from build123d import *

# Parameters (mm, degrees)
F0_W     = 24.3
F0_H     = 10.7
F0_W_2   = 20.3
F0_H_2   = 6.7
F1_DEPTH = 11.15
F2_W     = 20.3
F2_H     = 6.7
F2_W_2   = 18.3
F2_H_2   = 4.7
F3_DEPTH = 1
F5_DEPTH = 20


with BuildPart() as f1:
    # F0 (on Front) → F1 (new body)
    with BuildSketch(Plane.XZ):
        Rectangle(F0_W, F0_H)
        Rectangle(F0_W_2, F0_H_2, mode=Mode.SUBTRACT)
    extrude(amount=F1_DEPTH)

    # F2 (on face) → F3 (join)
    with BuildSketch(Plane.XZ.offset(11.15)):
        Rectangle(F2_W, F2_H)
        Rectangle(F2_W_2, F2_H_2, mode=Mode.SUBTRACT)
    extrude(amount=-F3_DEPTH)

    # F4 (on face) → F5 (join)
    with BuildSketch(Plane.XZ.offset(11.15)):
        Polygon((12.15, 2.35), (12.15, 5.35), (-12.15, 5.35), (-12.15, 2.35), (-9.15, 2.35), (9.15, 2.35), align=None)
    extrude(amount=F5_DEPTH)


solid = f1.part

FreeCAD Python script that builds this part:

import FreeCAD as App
import Part
import Sketcher

doc = App.newDocument("Part")
body = doc.addObject("PartDesign::Body", "Body")

# Sketch on XZ plane
sketch1 = body.newObject("Sketcher::SketchObject", "Sketch")
sketch1.AttachmentSupport = (doc.getObject("XZ_Plane"), [""])
sketch1.MapMode = "FlatFace"
sketch1.addGeometry(Part.LineSegment(App.Vector(-12.15, 5.35, 0), App.Vector(-12.15, -5.35, 0)), False)
sketch1.addGeometry(Part.LineSegment(App.Vector(-12.15, -5.35, 0), App.Vector(12.15, -5.35, 0)), False)
sketch1.addGeometry(Part.LineSegment(App.Vector(12.15, -5.35, 0), App.Vector(12.15, 5.35, 0)), False)
sketch1.addGeometry(Part.LineSegment(App.Vector(12.15, 5.35, 0), App.Vector(-12.15, 5.35, 0)), False)
sketch1.addGeometry(Part.LineSegment(App.Vector(10.15, -3.35, 0), App.Vector(-10.15, -3.35, 0)), False)
sketch1.addGeometry(Part.LineSegment(App.Vector(-10.15, -3.35, 0), App.Vector(-10.15, 3.35, 0)), False)
sketch1.addGeometry(Part.LineSegment(App.Vector(-10.15, 3.35, 0), App.Vector(10.15, 3.35, 0)), False)
sketch1.addGeometry(Part.LineSegment(App.Vector(10.15, 3.35, 0), App.Vector(10.15, -3.35, 0)), False)
sketch1.addConstraint(Sketcher.Constraint("Coincident", 0, 2, 1, 1))
sketch1.addConstraint(Sketcher.Constraint("Coincident", 1, 2, 2, 1))
sketch1.addConstraint(Sketcher.Constraint("Coincident", 2, 2, 3, 1))
sketch1.addConstraint(Sketcher.Constraint("Coincident", 3, 2, 0, 1))
sketch1.addConstraint(Sketcher.Constraint("Coincident", 4, 2, 5, 1))
sketch1.addConstraint(Sketcher.Constraint("Coincident", 5, 2, 6, 1))
sketch1.addConstraint(Sketcher.Constraint("Coincident", 6, 2, 7, 1))
sketch1.addConstraint(Sketcher.Constraint("Coincident", 7, 2, 4, 1))
sketch1.addConstraint(Sketcher.Constraint("Vertical", 0))
sketch1.addConstraint(Sketcher.Constraint("Horizontal", 1))
sketch1.addConstraint(Sketcher.Constraint("Vertical", 2))
sketch1.addConstraint(Sketcher.Constraint("Horizontal", 3))
sketch1.addConstraint(Sketcher.Constraint("Horizontal", 4))
sketch1.addConstraint(Sketcher.Constraint("Vertical", 5))
sketch1.addConstraint(Sketcher.Constraint("Horizontal", 6))
sketch1.addConstraint(Sketcher.Constraint("Vertical", 7))
sketch1.addConstraint(Sketcher.Constraint("Symmetric", 0, 2, 2, 2, -1, 1))
sketch1.addConstraint(Sketcher.Constraint("Symmetric", 4, 2, 6, 2, -1, 1))
sketch1.addConstraint(Sketcher.Constraint("DistanceX", 1, 1, 1, 2, 24.3))
sketch1.addConstraint(Sketcher.Constraint("DistanceX", 4, 2, 4, 1, 20.3))
sketch1.addConstraint(Sketcher.Constraint("DistanceY", 0, 2, 0, 1, 10.7))
sketch1.addConstraint(Sketcher.Constraint("DistanceY", 5, 1, 5, 2, 6.7))
pad1 = body.newObject("PartDesign::Pad", "Pad")
pad1.Profile = sketch1
pad1.Length = 11.15

# Sketch on XZ plane
sketch2 = body.newObject("Sketcher::SketchObject", "Sketch001")
sketch2.AttachmentSupport = (doc.getObject("XZ_Plane"), [""])
sketch2.MapMode = "FlatFace"
sketch2.AttachmentOffset = App.Placement(App.Vector(0, 0, 11.15), App.Rotation())
sketch2.addGeometry(Part.LineSegment(App.Vector(-10.15, 3.35, 0), App.Vector(-10.15, -3.35, 0)), False)
sketch2.addGeometry(Part.LineSegment(App.Vector(-10.15, -3.35, 0), App.Vector(10.15, -3.35, 0)), False)
sketch2.addGeometry(Part.LineSegment(App.Vector(10.15, -3.35, 0), App.Vector(10.15, 3.35, 0)), False)
sketch2.addGeometry(Part.LineSegment(App.Vector(10.15, 3.35, 0), App.Vector(-10.15, 3.35, 0)), False)
sketch2.addGeometry(Part.LineSegment(App.Vector(9.15, -2.35, 0), App.Vector(-9.15, -2.35, 0)), False)
sketch2.addGeometry(Part.LineSegment(App.Vector(-9.15, -2.35, 0), App.Vector(-9.15, 2.35, 0)), False)
sketch2.addGeometry(Part.LineSegment(App.Vector(-9.15, 2.35, 0), App.Vector(9.15, 2.35, 0)), False)
sketch2.addGeometry(Part.LineSegment(App.Vector(9.15, 2.35, 0), App.Vector(9.15, -2.35, 0)), False)
sketch2.addConstraint(Sketcher.Constraint("Coincident", 0, 2, 1, 1))
sketch2.addConstraint(Sketcher.Constraint("Coincident", 1, 2, 2, 1))
sketch2.addConstraint(Sketcher.Constraint("Coincident", 2, 2, 3, 1))
sketch2.addConstraint(Sketcher.Constraint("Coincident", 3, 2, 0, 1))
sketch2.addConstraint(Sketcher.Constraint("Coincident", 4, 2, 5, 1))
sketch2.addConstraint(Sketcher.Constraint("Coincident", 5, 2, 6, 1))
sketch2.addConstraint(Sketcher.Constraint("Coincident", 6, 2, 7, 1))
sketch2.addConstraint(Sketcher.Constraint("Coincident", 7, 2, 4, 1))
sketch2.addConstraint(Sketcher.Constraint("Vertical", 0))
sketch2.addConstraint(Sketcher.Constraint("Horizontal", 1))
sketch2.addConstraint(Sketcher.Constraint("Vertical", 2))
sketch2.addConstraint(Sketcher.Constraint("Horizontal", 3))
sketch2.addConstraint(Sketcher.Constraint("Horizontal", 4))
sketch2.addConstraint(Sketcher.Constraint("Vertical", 5))
sketch2.addConstraint(Sketcher.Constraint("Horizontal", 6))
sketch2.addConstraint(Sketcher.Constraint("Vertical", 7))
sketch2.addConstraint(Sketcher.Constraint("Symmetric", 0, 2, 2, 2, -1, 1))
sketch2.addConstraint(Sketcher.Constraint("Symmetric", 4, 2, 6, 2, -1, 1))
sketch2.addConstraint(Sketcher.Constraint("DistanceX", 1, 1, 1, 2, 20.3))
sketch2.addConstraint(Sketcher.Constraint("DistanceX", 4, 2, 4, 1, 18.3))
sketch2.addConstraint(Sketcher.Constraint("DistanceY", 0, 2, 0, 1, 6.7))
sketch2.addConstraint(Sketcher.Constraint("DistanceY", 5, 1, 5, 2, 4.7))
pad2 = body.newObject("PartDesign::Pad", "Pad001")
pad2.Profile = sketch2
pad2.Length = 1
pad2.Reversed = True

# Sketch on XZ plane
sketch3 = body.newObject("Sketcher::SketchObject", "Sketch002")
sketch3.AttachmentSupport = (doc.getObject("XZ_Plane"), [""])
sketch3.MapMode = "FlatFace"
sketch3.AttachmentOffset = App.Placement(App.Vector(0, 0, 11.15), App.Rotation())
sketch3.addGeometry(Part.LineSegment(App.Vector(12.15, 2.35, 0), App.Vector(12.15, 5.35, 0)), False)
sketch3.addGeometry(Part.LineSegment(App.Vector(12.15, 5.35, 0), App.Vector(-12.15, 5.35, 0)), False)
sketch3.addGeometry(Part.LineSegment(App.Vector(-12.15, 5.35, 0), App.Vector(-12.15, 2.35, 0)), False)
sketch3.addGeometry(Part.LineSegment(App.Vector(-12.15, 2.35, 0), App.Vector(12.15, 2.35, 0)), False)
sketch3.addConstraint(Sketcher.Constraint("Coincident", 0, 2, 1, 1))
sketch3.addConstraint(Sketcher.Constraint("Coincident", 1, 2, 2, 1))
sketch3.addConstraint(Sketcher.Constraint("Coincident", 2, 2, 3, 1))
sketch3.addConstraint(Sketcher.Constraint("Coincident", 3, 2, 0, 1))
sketch3.addConstraint(Sketcher.Constraint("Vertical", 0))
sketch3.addConstraint(Sketcher.Constraint("Horizontal", 1))
sketch3.addConstraint(Sketcher.Constraint("Vertical", 2))
sketch3.addConstraint(Sketcher.Constraint("Horizontal", 3))
sketch3.addConstraint(Sketcher.Constraint("DistanceY", 0, 1, 0, 2, 3.0))
sketch3.addConstraint(Sketcher.Constraint("DistanceX", 1, 2, 1, 1, 24.3))
sketch3.addConstraint(Sketcher.Constraint("DistanceX", -1, 1, 0, 2, 12.15))
sketch3.addConstraint(Sketcher.Constraint("DistanceY", -1, 1, 0, 2, 5.35))
pad3 = body.newObject("PartDesign::Pad", "Pad002")
pad3.Profile = sketch3
pad3.Length = 20

doc.recompute()
